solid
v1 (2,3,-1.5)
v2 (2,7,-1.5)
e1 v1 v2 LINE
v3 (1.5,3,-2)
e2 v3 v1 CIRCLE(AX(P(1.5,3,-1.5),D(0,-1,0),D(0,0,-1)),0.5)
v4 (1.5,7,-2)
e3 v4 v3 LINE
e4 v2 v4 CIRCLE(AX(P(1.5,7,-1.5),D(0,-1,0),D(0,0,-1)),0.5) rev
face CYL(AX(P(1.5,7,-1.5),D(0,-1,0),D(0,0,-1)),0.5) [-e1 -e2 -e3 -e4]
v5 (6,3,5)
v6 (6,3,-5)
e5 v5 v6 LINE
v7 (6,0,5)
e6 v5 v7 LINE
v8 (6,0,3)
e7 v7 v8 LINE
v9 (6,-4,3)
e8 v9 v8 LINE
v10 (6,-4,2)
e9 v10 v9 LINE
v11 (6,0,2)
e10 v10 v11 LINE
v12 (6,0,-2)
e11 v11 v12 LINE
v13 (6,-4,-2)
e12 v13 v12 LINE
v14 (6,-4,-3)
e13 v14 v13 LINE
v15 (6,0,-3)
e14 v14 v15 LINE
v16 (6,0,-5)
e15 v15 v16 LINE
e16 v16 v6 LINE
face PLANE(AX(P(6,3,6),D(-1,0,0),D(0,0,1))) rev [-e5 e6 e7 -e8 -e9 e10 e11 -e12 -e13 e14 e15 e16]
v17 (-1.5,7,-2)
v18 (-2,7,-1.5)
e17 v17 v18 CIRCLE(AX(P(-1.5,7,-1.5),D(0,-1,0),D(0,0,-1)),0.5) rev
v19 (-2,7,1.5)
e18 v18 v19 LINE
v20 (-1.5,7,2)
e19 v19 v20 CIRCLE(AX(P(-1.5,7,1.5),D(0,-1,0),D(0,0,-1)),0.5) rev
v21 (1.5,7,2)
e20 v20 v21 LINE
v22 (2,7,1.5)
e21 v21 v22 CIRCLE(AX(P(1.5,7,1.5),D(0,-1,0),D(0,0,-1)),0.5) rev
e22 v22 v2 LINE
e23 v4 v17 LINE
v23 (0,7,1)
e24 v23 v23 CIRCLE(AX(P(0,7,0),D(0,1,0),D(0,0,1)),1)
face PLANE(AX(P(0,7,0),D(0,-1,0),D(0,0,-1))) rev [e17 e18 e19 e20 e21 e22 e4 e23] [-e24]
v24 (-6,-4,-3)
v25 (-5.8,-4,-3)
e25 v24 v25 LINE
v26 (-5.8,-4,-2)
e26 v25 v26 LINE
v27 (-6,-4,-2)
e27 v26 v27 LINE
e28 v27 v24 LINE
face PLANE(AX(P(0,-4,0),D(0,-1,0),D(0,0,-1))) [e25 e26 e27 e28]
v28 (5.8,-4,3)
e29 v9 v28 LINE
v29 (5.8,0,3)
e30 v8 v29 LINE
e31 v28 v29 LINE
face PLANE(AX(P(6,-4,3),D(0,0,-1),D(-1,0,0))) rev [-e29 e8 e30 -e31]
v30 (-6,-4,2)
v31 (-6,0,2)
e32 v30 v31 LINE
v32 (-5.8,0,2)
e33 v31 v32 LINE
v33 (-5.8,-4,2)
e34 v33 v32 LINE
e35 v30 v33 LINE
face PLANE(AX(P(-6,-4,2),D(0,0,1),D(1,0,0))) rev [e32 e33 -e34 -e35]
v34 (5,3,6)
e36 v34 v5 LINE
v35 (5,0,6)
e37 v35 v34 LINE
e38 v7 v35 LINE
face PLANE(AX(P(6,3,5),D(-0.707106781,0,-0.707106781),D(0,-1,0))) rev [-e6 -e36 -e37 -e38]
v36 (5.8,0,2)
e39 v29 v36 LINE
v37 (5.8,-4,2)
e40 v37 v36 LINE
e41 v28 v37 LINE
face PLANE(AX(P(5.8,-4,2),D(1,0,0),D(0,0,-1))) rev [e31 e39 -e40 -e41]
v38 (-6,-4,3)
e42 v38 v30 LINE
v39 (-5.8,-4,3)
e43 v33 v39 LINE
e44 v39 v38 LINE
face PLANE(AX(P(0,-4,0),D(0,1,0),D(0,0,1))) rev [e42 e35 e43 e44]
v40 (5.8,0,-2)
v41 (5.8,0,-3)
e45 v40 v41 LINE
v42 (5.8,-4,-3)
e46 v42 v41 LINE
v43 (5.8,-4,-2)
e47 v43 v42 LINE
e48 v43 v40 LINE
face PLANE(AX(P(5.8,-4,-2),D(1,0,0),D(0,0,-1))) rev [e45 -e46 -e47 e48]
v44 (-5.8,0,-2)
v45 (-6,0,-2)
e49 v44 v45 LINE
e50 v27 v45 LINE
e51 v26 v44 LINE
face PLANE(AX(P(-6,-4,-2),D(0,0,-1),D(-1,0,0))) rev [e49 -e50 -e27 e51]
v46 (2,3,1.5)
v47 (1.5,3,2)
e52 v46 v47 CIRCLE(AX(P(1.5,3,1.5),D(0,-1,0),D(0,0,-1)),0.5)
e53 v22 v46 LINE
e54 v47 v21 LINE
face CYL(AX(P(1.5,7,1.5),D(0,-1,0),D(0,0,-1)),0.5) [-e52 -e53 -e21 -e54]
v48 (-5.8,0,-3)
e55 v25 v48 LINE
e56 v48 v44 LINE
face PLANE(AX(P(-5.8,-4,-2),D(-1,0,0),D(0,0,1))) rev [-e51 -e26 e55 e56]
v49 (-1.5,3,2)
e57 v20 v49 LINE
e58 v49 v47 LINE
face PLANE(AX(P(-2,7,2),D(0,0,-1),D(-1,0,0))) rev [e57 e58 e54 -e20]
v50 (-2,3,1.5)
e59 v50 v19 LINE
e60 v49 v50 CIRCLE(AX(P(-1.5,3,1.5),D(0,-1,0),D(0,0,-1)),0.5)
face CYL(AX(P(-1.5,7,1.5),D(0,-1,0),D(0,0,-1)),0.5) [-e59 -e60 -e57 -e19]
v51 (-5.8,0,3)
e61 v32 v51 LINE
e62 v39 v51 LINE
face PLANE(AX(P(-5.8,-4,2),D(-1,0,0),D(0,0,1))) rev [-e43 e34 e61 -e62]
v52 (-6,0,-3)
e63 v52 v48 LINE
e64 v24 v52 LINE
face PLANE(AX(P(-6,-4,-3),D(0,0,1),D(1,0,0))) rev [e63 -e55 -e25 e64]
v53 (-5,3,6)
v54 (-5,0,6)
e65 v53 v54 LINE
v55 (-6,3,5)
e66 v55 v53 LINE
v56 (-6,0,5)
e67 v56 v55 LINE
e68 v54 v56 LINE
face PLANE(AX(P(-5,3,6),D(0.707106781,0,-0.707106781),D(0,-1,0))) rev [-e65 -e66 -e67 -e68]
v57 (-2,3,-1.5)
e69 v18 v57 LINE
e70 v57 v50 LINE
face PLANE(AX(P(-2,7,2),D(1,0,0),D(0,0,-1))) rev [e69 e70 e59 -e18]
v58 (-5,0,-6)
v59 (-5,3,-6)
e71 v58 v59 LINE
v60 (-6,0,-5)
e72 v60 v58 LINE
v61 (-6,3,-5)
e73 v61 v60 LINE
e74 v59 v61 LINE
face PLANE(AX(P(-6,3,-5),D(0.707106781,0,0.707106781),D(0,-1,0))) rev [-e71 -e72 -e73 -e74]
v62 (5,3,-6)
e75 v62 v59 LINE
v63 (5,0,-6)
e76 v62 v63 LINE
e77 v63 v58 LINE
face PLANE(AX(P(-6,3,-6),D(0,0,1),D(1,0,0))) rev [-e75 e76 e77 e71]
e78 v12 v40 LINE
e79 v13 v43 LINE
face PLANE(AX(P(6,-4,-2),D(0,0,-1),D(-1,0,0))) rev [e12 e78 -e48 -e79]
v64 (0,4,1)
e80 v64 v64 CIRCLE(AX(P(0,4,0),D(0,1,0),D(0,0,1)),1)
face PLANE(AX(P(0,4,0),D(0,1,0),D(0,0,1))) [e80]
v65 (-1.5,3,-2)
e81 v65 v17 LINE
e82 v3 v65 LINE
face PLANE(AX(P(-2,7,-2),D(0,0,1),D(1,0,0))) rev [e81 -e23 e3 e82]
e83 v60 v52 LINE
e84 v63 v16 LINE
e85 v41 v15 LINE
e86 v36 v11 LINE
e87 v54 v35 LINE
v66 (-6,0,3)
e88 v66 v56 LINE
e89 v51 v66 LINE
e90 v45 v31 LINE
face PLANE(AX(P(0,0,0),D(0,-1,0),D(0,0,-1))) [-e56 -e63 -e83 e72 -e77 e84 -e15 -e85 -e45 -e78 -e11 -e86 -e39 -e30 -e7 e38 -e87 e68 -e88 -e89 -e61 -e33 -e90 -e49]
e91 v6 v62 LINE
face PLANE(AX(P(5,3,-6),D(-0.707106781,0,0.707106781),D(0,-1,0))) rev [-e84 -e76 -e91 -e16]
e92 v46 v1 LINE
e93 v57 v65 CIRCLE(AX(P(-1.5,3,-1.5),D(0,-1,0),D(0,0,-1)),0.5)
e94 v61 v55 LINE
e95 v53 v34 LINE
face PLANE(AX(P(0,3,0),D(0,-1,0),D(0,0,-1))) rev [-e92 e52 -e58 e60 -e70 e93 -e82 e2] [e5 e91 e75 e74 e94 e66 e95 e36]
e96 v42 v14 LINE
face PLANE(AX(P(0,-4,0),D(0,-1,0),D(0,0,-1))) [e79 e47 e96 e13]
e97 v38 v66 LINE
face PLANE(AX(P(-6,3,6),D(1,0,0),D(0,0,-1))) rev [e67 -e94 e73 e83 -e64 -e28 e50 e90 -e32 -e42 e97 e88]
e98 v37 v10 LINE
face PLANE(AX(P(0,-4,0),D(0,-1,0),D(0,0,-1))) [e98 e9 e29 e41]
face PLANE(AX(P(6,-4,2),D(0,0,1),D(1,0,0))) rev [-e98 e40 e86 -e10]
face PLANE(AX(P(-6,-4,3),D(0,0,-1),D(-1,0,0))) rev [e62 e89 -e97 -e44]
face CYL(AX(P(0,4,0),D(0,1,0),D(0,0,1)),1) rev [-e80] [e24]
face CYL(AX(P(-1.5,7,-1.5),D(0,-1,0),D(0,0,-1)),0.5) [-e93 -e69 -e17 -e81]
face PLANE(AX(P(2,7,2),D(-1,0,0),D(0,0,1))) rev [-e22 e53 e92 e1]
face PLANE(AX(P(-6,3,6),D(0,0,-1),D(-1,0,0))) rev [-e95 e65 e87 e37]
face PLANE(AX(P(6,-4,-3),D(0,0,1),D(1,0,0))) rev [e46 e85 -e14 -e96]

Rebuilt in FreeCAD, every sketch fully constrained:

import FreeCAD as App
import Part
import Sketcher


def edges_at(feature, points):
    """Names of the edges that pass closest to the given points."""
    edges = feature.Shape.Edges
    near = lambda p: min(range(len(edges)), key=lambda i: edges[i].distToShape(Part.Vertex(*p))[0])
    return sorted({f"Edge{near(p) + 1}" for p in points})


def add_polygon(sketch, points):
    """Adds a closed chain of lines whose ends are joined by coincident constraints."""
    first, n = sketch.GeometryCount, len(points)
    for a, b in zip(points, points[1:] + points[:1]):
        sketch.addGeometry(Part.LineSegment(App.Vector(*a, 0), App.Vector(*b, 0)), False)
    for i in range(n):
        sketch.addConstraint(Sketcher.Constraint("Coincident", first + i, 2, first + (i + 1) % n, 1))

doc = App.newDocument("Part")
body = doc.addObject("PartDesign::Body", "Body")

# Sketch on XZ plane
sketch1 = body.newObject("Sketcher::SketchObject", "Sketch")
sketch1.AttachmentSupport = (doc.getObject("XZ_Plane"), [""])
sketch1.MapMode = "FlatFace"
add_polygon(sketch1, [(-6, -6), (-6, 6), (6, 6), (6, -6)])  # lines 0-3
sketch1.addConstraint(Sketcher.Constraint("Vertical", 0))
sketch1.addConstraint(Sketcher.Constraint("Horizontal", 1))
sketch1.addConstraint(Sketcher.Constraint("Vertical", 2))
sketch1.addConstraint(Sketcher.Constraint("Horizontal", 3))
sketch1.addConstraint(Sketcher.Constraint("Symmetric", 0, 2, 2, 2, -1, 1))
sketch1.addConstraint(Sketcher.Constraint("Equal", 3, 0))
sketch1.addConstraint(Sketcher.Constraint("DistanceX", 1, 1, 1, 2, 12.0))
pad1 = body.newObject("PartDesign::Pad", "Pad")
pad1.Profile = sketch1
pad1.Length = 3
pad1.Reversed = True

# Sketch on XZ plane
sketch2 = body.newObject("Sketcher::SketchObject", "Sketch001")
sketch2.AttachmentSupport = (doc.getObject("XZ_Plane"), [""])
sketch2.MapMode = "FlatFace"
sketch2.AttachmentOffset = App.Placement(App.Vector(0, 0, -3), App.Rotation())
add_polygon(sketch2, [(-2, -2), (-2, 2), (2, 2), (2, -2)])  # lines 0-3
sketch2.addConstraint(Sketcher.Constraint("Vertical", 0))
sketch2.addConstraint(Sketcher.Constraint("Horizontal", 1))
sketch2.addConstraint(Sketcher.Constraint("Vertical", 2))
sketch2.addConstraint(Sketcher.Constraint("Horizontal", 3))
sketch2.addConstraint(Sketcher.Constraint("Symmetric", 0, 2, 2, 2, -1, 1))
sketch2.addConstraint(Sketcher.Constraint("Equal", 3, 0))
sketch2.addConstraint(Sketcher.Constraint("DistanceX", 1, 1, 1, 2, 4.0))
pad2 = body.newObject("PartDesign::Pad", "Pad001")
pad2.Profile = sketch2
pad2.Length = 4
pad2.Reversed = True

# Sketch on XZ plane
sketch3 = body.newObject("Sketcher::SketchObject", "Sketch002")
sketch3.AttachmentSupport = (doc.getObject("XZ_Plane"), [""])
sketch3.MapMode = "FlatFace"
sketch3.AttachmentOffset = App.Placement(App.Vector(0, 0, -7), App.Rotation())
sketch3.addGeometry(Part.Circle(App.Vector(0, 0, 0), App.Vector(0, 0, 1), 1), False)
sketch3.addConstraint(Sketcher.Constraint("Coincident", 0, 3, -1, 1))
sketch3.addConstraint(Sketcher.Constraint("Diameter", 0, 2.0))
pocket1 = body.newObject("PartDesign::Pocket", "Pocket")
pocket1.Profile = sketch3
pocket1.Length = 3
pocket1.Reversed = True
doc.recompute()

fillet = body.newObject("PartDesign::Fillet", "Fillet")
fillet.Base = (pocket1, edges_at(pocket1, [
    (2, 5, 2),
    (2, 5, -2),
    (-2, 5, -2),
    (-2, 5, 2),
]))
fillet.Radius = 0.5

# Sketch on XZ plane
sketch4 = body.newObject("Sketcher::SketchObject", "Sketch003")
sketch4.AttachmentSupport = (doc.getObject("XZ_Plane"), [""])
sketch4.MapMode = "FlatFace"
add_polygon(sketch4, [(-6, -2), (-6, -3), (-5.8, -3), (-5.8, -2)])  # lines 0-3
add_polygon(sketch4, [(-6, 3), (-6, 2), (-5.8, 2), (-5.8, 3)])  # lines 4-7
add_polygon(sketch4, [(5.8, 3), (5.8, 2), (6, 2), (6, 3)])  # lines 8-11
add_polygon(sketch4, [(5.8, -2), (5.8, -3), (6, -3), (6, -2)])  # lines 12-15
sketch4.addConstraint(Sketcher.Constraint("Vertical", 0))
sketch4.addConstraint(Sketcher.Constraint("Horizontal", 1))
sketch4.addConstraint(Sketcher.Constraint("Vertical", 2))
sketch4.addConstraint(Sketcher.Constraint("Horizontal", 3))
sketch4.addConstraint(Sketcher.Constraint("Vertical", 4))
sketch4.addConstraint(Sketcher.Constraint("Horizontal", 5))
sketch4.addConstraint(Sketcher.Constraint("Vertical", 6))
sketch4.addConstraint(Sketcher.Constraint("Horizontal", 7))
sketch4.addConstraint(Sketcher.Constraint("Vertical", 8))
sketch4.addConstraint(Sketcher.Constraint("Horizontal", 9))
sketch4.addConstraint(Sketcher.Constraint("Vertical", 10))
sketch4.addConstraint(Sketcher.Constraint("Horizontal", 11))
sketch4.addConstraint(Sketcher.Constraint("Vertical", 12))
sketch4.addConstraint(Sketcher.Constraint("Horizontal", 13))
sketch4.addConstraint(Sketcher.Constraint("Vertical", 14))
sketch4.addConstraint(Sketcher.Constraint("Horizontal", 15))
sketch4.addConstraint(Sketcher.Constraint("Symmetric", 2, 2, 8, 2, -1, 1))
sketch4.addConstraint(Sketcher.Constraint("Symmetric", 0, 2, 10, 2, -1, 1))
sketch4.addConstraint(Sketcher.Constraint("Symmetric", 6, 2, 12, 2, -1, 1))
sketch4.addConstraint(Sketcher.Constraint("Symmetric", 4, 2, 14, 2, -1, 1))
sketch4.addConstraint(Sketcher.Constraint("Symmetric", 5, 2, 8, 2, -2))
sketch4.addConstraint(Sketcher.Constraint("Symmetric", 7, 2, 10, 2, -2))
sketch4.addConstraint(Sketcher.Constraint("DistanceY", 0, 2, 0, 1, 1.0))
sketch4.addConstraint(Sketcher.Constraint("DistanceX", 1, 1, 1, 2, 0.2))
sketch4.addConstraint(Sketcher.Constraint("DistanceX", 0, 2, -1, 1, 6.0))
sketch4.addConstraint(Sketcher.Constraint("DistanceY", 0, 2, -1, 1, 3.0))
pad3 = body.newObject("PartDesign::Pad", "Pad002")
pad3.Profile = sketch4
pad3.Length = 4
doc.recompute()

chamfer = body.newObject("PartDesign::Chamfer", "Chamfer")
chamfer.Base = (pad3, edges_at(pad3, [
    (6, 1.5, 6),
    (-6, 1.5, 6),
    (-6, 1.5, -6),
    (6, 1.5, -6),
]))
chamfer.Size = 1

doc.recompute()
